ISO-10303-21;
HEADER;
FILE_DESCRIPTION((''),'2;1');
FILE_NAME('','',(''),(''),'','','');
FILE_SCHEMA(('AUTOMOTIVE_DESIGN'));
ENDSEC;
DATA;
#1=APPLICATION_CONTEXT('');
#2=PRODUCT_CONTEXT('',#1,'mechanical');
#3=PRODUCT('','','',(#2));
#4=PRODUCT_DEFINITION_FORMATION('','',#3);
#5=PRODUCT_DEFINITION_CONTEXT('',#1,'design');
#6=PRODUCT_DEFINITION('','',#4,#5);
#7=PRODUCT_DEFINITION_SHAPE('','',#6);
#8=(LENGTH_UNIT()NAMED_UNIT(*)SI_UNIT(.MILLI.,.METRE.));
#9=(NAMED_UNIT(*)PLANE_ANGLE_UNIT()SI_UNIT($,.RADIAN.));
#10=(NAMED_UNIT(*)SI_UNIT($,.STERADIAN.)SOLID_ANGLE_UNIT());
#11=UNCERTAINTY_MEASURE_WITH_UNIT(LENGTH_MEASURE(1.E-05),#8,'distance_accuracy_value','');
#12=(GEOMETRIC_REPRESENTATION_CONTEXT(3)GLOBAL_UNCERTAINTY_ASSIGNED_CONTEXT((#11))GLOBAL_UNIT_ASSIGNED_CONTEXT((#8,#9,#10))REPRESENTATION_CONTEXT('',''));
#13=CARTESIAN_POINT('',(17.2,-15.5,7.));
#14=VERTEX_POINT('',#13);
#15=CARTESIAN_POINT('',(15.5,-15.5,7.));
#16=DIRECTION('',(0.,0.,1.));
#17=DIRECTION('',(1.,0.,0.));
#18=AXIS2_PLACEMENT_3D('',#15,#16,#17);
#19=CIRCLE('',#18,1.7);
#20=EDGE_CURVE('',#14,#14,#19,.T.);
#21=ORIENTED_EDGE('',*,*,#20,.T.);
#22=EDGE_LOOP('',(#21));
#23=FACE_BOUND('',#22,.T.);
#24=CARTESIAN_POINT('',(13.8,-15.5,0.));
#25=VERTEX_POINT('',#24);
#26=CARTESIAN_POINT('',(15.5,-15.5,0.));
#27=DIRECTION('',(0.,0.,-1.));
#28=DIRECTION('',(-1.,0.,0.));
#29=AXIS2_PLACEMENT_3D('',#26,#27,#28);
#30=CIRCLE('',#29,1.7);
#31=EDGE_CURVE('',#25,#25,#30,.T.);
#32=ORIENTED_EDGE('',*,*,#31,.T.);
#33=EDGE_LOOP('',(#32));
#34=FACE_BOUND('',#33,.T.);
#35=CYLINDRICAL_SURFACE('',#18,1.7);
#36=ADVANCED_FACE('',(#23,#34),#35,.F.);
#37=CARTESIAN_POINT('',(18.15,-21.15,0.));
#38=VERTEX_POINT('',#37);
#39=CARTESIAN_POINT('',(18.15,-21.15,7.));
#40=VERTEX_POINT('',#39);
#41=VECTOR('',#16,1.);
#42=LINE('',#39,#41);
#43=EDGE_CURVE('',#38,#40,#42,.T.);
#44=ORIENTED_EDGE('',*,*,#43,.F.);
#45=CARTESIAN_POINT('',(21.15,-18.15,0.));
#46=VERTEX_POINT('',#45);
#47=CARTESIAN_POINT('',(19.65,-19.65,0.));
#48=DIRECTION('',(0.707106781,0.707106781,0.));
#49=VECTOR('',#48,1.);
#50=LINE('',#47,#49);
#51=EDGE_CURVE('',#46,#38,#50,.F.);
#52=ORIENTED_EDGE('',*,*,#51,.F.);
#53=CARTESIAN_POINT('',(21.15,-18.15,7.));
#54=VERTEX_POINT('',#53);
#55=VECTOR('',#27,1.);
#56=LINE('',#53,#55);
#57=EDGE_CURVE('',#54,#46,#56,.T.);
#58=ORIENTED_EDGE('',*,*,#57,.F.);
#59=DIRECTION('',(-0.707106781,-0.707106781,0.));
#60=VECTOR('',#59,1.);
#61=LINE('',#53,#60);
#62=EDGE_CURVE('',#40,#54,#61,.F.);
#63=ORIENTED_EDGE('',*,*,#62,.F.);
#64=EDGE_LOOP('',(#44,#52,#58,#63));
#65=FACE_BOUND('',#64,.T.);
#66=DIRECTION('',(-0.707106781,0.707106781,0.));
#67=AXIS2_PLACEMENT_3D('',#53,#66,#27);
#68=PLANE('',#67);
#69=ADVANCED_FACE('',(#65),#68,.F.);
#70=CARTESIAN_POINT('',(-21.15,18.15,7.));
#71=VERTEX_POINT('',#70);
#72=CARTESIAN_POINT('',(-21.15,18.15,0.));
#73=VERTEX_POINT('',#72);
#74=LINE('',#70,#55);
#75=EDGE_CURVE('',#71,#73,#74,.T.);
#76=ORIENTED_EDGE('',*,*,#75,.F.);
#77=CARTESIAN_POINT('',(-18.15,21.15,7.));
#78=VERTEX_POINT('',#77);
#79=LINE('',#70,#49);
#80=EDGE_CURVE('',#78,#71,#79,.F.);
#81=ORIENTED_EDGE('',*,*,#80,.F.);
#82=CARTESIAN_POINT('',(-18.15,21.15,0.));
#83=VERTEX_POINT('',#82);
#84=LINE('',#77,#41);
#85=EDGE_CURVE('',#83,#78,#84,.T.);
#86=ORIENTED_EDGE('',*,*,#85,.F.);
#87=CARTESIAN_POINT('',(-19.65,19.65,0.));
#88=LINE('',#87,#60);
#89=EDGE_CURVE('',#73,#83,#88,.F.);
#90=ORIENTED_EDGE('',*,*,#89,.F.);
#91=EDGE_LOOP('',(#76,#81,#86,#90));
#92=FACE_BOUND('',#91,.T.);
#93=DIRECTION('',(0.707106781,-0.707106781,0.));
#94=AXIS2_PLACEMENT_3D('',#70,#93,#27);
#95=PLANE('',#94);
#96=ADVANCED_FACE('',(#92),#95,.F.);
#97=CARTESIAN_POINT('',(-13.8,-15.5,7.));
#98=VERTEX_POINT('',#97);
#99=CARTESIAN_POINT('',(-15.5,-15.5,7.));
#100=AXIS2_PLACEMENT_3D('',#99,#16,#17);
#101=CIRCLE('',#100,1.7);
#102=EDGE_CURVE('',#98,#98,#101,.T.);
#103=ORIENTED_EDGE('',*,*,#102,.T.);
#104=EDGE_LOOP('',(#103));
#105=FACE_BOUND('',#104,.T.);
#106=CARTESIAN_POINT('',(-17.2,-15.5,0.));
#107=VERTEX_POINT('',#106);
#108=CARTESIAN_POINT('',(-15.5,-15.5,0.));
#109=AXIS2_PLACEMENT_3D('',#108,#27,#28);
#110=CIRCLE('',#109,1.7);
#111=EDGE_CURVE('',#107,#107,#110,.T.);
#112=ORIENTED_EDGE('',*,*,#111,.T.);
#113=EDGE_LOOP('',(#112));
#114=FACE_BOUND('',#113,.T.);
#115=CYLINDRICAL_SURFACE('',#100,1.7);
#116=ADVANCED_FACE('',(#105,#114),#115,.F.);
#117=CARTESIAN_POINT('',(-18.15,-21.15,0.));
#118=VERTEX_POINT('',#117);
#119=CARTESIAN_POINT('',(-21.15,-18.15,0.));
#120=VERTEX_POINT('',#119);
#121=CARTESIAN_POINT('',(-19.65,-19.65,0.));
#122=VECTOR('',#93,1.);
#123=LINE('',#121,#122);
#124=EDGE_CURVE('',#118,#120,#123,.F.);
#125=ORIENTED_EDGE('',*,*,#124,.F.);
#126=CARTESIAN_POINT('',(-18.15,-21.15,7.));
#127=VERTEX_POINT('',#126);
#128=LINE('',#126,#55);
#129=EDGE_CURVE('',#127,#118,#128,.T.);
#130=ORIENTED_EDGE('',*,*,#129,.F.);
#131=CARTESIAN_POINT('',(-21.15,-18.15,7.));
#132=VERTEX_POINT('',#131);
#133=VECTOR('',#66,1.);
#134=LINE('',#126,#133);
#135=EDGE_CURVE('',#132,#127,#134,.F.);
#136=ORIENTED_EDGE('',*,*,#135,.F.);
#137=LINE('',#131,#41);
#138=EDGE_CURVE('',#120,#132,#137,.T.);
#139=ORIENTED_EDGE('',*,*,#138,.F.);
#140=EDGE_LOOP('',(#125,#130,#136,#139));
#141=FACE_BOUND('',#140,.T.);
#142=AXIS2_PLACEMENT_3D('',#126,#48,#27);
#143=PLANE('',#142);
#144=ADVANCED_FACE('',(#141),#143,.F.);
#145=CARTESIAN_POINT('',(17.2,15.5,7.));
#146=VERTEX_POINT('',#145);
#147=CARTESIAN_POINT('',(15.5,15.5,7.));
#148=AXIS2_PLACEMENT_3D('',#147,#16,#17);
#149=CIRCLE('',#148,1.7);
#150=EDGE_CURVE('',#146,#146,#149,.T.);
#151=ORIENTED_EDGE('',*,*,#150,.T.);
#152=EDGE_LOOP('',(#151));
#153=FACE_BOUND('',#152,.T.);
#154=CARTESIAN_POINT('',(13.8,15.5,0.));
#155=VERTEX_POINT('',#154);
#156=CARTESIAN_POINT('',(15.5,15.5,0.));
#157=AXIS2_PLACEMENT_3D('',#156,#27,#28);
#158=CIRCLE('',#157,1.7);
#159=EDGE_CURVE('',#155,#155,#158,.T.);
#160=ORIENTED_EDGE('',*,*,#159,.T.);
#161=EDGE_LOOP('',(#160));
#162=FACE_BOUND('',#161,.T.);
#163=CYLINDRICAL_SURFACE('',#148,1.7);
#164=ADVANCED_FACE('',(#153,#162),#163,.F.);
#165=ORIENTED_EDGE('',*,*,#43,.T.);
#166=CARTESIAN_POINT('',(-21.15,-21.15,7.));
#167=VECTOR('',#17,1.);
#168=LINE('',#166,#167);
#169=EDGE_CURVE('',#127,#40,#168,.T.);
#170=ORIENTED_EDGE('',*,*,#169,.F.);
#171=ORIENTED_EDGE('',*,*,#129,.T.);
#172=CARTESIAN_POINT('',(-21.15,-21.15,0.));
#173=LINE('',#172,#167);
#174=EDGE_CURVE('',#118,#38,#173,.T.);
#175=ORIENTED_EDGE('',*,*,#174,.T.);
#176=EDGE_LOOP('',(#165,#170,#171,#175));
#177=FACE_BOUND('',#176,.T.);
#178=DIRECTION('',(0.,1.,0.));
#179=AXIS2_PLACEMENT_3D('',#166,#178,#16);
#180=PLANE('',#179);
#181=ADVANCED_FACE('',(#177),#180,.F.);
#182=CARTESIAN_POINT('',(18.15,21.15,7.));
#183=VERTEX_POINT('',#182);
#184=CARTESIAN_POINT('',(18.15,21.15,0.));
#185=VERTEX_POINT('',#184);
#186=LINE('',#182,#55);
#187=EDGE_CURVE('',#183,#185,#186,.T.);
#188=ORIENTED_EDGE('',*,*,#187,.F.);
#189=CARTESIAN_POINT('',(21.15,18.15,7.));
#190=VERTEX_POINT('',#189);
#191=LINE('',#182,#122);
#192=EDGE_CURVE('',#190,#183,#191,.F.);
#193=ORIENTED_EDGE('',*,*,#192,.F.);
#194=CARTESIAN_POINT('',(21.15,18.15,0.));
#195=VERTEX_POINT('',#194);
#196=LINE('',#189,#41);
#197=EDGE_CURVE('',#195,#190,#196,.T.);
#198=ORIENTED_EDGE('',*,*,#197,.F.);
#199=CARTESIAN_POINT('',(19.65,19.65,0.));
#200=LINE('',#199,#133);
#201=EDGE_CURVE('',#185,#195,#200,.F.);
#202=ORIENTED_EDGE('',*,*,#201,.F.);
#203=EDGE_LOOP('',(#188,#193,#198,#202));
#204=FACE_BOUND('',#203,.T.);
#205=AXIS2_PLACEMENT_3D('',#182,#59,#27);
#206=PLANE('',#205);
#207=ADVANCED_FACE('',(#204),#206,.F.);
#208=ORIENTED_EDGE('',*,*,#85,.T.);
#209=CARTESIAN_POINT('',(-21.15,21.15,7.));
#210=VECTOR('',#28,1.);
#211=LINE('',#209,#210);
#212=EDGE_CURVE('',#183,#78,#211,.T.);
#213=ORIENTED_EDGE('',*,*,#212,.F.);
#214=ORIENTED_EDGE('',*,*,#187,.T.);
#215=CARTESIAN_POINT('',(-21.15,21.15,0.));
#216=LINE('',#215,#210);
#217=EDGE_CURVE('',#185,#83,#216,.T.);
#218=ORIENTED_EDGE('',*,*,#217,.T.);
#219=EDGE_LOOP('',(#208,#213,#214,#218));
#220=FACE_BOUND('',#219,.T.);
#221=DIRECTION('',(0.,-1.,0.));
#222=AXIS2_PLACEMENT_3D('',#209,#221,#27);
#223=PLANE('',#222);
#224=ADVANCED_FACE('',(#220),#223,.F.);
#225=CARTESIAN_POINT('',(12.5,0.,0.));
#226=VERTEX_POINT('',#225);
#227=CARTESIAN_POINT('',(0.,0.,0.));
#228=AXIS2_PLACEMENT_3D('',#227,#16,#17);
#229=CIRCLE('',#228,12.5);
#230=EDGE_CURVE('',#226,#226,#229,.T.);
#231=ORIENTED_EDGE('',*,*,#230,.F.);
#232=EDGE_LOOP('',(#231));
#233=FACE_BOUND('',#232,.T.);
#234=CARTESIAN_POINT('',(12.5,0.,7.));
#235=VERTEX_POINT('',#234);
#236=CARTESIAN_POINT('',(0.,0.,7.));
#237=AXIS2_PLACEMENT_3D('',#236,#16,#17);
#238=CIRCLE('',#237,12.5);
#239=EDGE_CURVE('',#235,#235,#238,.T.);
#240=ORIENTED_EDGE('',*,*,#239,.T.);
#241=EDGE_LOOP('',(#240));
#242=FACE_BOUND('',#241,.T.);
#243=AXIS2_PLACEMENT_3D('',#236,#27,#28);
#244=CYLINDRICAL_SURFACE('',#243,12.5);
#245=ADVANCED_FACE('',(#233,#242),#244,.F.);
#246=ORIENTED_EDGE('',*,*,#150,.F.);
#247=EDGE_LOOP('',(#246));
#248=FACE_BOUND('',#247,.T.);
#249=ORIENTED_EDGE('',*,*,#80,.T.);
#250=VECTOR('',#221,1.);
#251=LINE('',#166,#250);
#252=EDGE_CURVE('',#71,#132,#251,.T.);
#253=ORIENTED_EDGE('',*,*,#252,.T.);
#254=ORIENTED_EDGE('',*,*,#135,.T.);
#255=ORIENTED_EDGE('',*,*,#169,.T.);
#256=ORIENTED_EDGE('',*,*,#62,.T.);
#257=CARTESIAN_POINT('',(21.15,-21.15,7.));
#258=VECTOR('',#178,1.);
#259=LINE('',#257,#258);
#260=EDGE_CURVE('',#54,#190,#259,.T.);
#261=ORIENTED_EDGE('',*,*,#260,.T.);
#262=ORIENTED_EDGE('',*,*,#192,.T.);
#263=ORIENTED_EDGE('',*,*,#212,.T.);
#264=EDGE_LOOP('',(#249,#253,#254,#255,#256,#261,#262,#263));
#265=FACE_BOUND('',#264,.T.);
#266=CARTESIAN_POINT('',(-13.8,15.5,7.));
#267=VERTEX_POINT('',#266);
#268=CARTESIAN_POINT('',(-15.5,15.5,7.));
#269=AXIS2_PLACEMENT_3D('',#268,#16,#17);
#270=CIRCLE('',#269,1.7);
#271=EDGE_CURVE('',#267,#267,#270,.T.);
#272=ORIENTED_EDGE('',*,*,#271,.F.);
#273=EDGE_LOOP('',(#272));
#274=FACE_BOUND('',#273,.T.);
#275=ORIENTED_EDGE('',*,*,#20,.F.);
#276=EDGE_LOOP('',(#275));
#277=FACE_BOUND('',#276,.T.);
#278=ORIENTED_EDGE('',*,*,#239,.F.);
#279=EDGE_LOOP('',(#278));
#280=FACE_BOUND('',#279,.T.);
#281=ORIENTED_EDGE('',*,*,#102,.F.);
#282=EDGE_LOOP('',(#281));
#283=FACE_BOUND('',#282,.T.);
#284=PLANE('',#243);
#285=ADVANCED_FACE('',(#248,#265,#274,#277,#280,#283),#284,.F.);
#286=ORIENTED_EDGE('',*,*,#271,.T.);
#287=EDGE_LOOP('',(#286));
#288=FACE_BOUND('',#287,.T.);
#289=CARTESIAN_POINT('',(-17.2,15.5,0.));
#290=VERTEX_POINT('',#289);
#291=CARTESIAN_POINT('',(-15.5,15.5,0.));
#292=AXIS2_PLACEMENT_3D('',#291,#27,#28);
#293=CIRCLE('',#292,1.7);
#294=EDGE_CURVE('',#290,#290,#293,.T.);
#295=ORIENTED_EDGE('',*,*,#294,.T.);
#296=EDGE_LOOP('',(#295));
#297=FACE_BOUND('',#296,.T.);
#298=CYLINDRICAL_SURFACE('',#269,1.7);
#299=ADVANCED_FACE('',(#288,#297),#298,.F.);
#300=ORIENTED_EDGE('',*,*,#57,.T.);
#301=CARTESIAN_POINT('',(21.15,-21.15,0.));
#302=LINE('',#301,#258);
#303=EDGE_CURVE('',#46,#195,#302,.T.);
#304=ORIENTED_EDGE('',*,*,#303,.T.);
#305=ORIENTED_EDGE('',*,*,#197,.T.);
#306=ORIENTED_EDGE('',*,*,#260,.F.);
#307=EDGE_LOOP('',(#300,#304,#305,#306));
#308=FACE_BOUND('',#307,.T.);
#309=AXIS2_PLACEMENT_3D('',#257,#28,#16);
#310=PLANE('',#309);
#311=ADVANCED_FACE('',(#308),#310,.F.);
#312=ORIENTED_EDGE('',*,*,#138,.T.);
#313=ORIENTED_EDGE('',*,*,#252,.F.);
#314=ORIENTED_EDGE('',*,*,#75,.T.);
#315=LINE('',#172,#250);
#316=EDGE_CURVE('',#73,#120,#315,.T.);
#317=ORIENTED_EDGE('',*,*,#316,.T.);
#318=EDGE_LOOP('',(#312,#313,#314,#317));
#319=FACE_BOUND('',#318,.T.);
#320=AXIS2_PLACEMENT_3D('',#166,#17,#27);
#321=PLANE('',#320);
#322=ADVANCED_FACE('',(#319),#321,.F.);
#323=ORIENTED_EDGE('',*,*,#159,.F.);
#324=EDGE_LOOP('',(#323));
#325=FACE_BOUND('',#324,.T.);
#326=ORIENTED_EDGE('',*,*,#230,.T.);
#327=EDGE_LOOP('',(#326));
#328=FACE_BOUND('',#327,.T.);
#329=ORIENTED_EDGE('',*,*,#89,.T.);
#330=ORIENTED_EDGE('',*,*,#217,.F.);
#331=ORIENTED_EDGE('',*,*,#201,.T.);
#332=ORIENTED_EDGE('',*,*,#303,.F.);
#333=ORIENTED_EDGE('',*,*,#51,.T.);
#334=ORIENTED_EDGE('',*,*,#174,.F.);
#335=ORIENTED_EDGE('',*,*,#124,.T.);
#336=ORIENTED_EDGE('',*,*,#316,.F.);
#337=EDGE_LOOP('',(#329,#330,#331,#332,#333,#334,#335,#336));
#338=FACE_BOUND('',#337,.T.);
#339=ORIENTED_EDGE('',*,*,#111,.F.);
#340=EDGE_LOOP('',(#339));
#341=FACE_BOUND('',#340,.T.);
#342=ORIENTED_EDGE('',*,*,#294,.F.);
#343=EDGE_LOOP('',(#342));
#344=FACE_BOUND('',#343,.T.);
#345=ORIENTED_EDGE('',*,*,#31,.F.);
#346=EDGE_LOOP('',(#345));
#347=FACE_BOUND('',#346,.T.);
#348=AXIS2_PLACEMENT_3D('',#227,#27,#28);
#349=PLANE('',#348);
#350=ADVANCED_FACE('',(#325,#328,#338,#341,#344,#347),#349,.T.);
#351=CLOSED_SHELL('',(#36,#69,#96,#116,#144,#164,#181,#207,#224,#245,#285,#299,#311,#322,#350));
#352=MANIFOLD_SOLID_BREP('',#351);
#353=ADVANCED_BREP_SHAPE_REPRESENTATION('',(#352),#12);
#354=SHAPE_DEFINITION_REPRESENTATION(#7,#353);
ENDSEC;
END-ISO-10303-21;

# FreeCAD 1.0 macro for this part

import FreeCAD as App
import Part
import Sketcher
from FreeCAD import Vector
Q = App.Units.Quantity


def edges_at(feature, points):
    """Names of the edges that pass closest to the given points."""
    edges = feature.Shape.Edges
    near = lambda p: min(range(len(edges)), key=lambda i: edges[i].distToShape(Part.Vertex(*p))[0])
    return sorted({f"Edge{near(p) + 1}" for p in points})


def add_polygon(sketch, points):
    """Adds a closed chain of lines whose ends are joined by coincident constraints."""
    first, n = sketch.GeometryCount, len(points)
    for a, b in zip(points, points[1:] + points[:1]):
        sketch.addGeometry(Part.LineSegment(App.Vector(*a, 0), App.Vector(*b, 0)), False)
    for i in range(n):
        sketch.addConstraint(Sketcher.Constraint("Coincident", first + i, 2, first + (i + 1) % n, 1))

doc = App.newDocument("Part")
params = doc.addObject("Spreadsheet::Sheet", "Params")
for row, (alias, value) in enumerate([
    ("sketch1_diameter", "25 mm"),
    ("sketch1_width", "42.3 mm"),
    ("pad1_length", "7 mm"),
    ("chamfer_size", "3 mm"),
    ("sketch2_diameter", "3.4 mm"),
    ("hole_diameter", "3.4 mm"),
    ("hole_depth", "7.5 mm"),
], start=1):
    params.set(f"A{row}", alias)
    params.set(f"B{row}", "=" + value)
    params.setAlias(f"B{row}", alias)

body = doc.addObject("PartDesign::Body", "Body")

# Sketch on XY plane
sketch1 = body.newObject("Sketcher::SketchObject", "Sketch")
sketch1.AttachmentSupport = (doc.getObject("XY_Plane"), [""])
sketch1.MapMode = "FlatFace"
add_polygon(sketch1, [(-21, 21), (-21, -21), (21, -21), (21, 21)])  # lines 0-3
sketch1.addGeometry(Part.Circle(Vector(0, 0, 0), Vector(0, 0, 1), 12), False)  # 4
sketch1.addConstraint(Sketcher.Constraint("Vertical", 0))
sketch1.addConstraint(Sketcher.Constraint("Horizontal", 1))
sketch1.addConstraint(Sketcher.Constraint("Vertical", 2))
sketch1.addConstraint(Sketcher.Constraint("Horizontal", 3))
sketch1.addConstraint(Sketcher.Constraint("Coincident", 4, 3, -1, 1))
sketch1.addConstraint(Sketcher.Constraint("Symmetric", 0, 2, 2, 2, -1, 1))
sketch1.addConstraint(Sketcher.Constraint("Equal", 3, 0))
sketch1.addConstraint(Sketcher.Constraint("Diameter", 4, Q("25 mm")))
sketch1.addConstraint(Sketcher.Constraint("DistanceX", 1, 1, 1, 2, Q("42.3 mm")))
sketch1.setExpression("Constraints[11]", "Params.sketch1_diameter")
sketch1.setExpression("Constraints[12]", "Params.sketch1_width")
pad1 = body.newObject("PartDesign::Pad", "Pad")
pad1.Profile = sketch1
pad1.setExpression("Length", "Params.pad1_length")
doc.recompute()

chamfer = body.newObject("PartDesign::Chamfer", "Chamfer")
chamfer.Base = (pad1, edges_at(pad1, [
    (21.15, -21.15, 3.5),
    (-21.15, -21.15, 3.5),
    (-21.15, 21.15, 3.5),
    (21.15, 21.15, 3.5),
]))
chamfer.setExpression("Size", "Params.chamfer_size")

# Sketch on XY plane
sketch2 = body.newObject("Sketcher::SketchObject", "Sketch001")
sketch2.AttachmentSupport = (doc.getObject("XY_Plane"), [""])
sketch2.MapMode = "FlatFace"
sketch2.AttachmentOffset = App.Placement(Vector(0, 0, 7), App.Rotation())
sketch2.addGeometry(Part.Circle(Vector(15.5, 15.5, 0), Vector(0, 0, 1), 1.7), False)
sketch2.addGeometry(Part.Circle(Vector(-15.5, 15.5, 0), Vector(0, 0, 1), 1.7), False)
sketch2.addGeometry(Part.Circle(Vector(-15.5, -15.5, 0), Vector(0, 0, 1), 1.7), False)
sketch2.addGeometry(Part.Circle(Vector(15.5, -15.5, 0), Vector(0, 0, 1), 1.7), False)
sketch2.addConstraint(Sketcher.Constraint("Equal", 0, 1))
sketch2.addConstraint(Sketcher.Constraint("Equal", 1, 2))
sketch2.addConstraint(Sketcher.Constraint("Equal", 2, 3))
sketch2.addConstraint(Sketcher.Constraint("Symmetric", 0, 3, 2, 3, -1, 1))
sketch2.addConstraint(Sketcher.Constraint("Symmetric", 1, 3, 3, 3, -1, 1))
sketch2.addConstraint(Sketcher.Constraint("Symmetric", 0, 3, 1, 3, -2))
sketch2.addConstraint(Sketcher.Constraint("Diameter", 0, Q("3.4 mm")))
sketch2.addConstraint(Sketcher.Constraint("DistanceX", 1, 3, 0, 3, Q("31 mm")))
sketch2.addConstraint(Sketcher.Constraint("DistanceY", 2, 3, 1, 3, Q("31 mm")))
sketch2.setExpression("Constraints[6]", "Params.sketch2_diameter")
doc.recompute()
hole = body.newObject("PartDesign::Hole", "Hole")
hole.Profile = sketch2
hole.ThreadType = "None"
hole.setExpression("Diameter", "Params.hole_diameter")
hole.DepthType = "Dimension"
hole.setExpression("Depth", "Params.hole_depth")
hole.DrillPoint = "Angled"
hole.DrillPointAngle = 118

doc.recompute()
